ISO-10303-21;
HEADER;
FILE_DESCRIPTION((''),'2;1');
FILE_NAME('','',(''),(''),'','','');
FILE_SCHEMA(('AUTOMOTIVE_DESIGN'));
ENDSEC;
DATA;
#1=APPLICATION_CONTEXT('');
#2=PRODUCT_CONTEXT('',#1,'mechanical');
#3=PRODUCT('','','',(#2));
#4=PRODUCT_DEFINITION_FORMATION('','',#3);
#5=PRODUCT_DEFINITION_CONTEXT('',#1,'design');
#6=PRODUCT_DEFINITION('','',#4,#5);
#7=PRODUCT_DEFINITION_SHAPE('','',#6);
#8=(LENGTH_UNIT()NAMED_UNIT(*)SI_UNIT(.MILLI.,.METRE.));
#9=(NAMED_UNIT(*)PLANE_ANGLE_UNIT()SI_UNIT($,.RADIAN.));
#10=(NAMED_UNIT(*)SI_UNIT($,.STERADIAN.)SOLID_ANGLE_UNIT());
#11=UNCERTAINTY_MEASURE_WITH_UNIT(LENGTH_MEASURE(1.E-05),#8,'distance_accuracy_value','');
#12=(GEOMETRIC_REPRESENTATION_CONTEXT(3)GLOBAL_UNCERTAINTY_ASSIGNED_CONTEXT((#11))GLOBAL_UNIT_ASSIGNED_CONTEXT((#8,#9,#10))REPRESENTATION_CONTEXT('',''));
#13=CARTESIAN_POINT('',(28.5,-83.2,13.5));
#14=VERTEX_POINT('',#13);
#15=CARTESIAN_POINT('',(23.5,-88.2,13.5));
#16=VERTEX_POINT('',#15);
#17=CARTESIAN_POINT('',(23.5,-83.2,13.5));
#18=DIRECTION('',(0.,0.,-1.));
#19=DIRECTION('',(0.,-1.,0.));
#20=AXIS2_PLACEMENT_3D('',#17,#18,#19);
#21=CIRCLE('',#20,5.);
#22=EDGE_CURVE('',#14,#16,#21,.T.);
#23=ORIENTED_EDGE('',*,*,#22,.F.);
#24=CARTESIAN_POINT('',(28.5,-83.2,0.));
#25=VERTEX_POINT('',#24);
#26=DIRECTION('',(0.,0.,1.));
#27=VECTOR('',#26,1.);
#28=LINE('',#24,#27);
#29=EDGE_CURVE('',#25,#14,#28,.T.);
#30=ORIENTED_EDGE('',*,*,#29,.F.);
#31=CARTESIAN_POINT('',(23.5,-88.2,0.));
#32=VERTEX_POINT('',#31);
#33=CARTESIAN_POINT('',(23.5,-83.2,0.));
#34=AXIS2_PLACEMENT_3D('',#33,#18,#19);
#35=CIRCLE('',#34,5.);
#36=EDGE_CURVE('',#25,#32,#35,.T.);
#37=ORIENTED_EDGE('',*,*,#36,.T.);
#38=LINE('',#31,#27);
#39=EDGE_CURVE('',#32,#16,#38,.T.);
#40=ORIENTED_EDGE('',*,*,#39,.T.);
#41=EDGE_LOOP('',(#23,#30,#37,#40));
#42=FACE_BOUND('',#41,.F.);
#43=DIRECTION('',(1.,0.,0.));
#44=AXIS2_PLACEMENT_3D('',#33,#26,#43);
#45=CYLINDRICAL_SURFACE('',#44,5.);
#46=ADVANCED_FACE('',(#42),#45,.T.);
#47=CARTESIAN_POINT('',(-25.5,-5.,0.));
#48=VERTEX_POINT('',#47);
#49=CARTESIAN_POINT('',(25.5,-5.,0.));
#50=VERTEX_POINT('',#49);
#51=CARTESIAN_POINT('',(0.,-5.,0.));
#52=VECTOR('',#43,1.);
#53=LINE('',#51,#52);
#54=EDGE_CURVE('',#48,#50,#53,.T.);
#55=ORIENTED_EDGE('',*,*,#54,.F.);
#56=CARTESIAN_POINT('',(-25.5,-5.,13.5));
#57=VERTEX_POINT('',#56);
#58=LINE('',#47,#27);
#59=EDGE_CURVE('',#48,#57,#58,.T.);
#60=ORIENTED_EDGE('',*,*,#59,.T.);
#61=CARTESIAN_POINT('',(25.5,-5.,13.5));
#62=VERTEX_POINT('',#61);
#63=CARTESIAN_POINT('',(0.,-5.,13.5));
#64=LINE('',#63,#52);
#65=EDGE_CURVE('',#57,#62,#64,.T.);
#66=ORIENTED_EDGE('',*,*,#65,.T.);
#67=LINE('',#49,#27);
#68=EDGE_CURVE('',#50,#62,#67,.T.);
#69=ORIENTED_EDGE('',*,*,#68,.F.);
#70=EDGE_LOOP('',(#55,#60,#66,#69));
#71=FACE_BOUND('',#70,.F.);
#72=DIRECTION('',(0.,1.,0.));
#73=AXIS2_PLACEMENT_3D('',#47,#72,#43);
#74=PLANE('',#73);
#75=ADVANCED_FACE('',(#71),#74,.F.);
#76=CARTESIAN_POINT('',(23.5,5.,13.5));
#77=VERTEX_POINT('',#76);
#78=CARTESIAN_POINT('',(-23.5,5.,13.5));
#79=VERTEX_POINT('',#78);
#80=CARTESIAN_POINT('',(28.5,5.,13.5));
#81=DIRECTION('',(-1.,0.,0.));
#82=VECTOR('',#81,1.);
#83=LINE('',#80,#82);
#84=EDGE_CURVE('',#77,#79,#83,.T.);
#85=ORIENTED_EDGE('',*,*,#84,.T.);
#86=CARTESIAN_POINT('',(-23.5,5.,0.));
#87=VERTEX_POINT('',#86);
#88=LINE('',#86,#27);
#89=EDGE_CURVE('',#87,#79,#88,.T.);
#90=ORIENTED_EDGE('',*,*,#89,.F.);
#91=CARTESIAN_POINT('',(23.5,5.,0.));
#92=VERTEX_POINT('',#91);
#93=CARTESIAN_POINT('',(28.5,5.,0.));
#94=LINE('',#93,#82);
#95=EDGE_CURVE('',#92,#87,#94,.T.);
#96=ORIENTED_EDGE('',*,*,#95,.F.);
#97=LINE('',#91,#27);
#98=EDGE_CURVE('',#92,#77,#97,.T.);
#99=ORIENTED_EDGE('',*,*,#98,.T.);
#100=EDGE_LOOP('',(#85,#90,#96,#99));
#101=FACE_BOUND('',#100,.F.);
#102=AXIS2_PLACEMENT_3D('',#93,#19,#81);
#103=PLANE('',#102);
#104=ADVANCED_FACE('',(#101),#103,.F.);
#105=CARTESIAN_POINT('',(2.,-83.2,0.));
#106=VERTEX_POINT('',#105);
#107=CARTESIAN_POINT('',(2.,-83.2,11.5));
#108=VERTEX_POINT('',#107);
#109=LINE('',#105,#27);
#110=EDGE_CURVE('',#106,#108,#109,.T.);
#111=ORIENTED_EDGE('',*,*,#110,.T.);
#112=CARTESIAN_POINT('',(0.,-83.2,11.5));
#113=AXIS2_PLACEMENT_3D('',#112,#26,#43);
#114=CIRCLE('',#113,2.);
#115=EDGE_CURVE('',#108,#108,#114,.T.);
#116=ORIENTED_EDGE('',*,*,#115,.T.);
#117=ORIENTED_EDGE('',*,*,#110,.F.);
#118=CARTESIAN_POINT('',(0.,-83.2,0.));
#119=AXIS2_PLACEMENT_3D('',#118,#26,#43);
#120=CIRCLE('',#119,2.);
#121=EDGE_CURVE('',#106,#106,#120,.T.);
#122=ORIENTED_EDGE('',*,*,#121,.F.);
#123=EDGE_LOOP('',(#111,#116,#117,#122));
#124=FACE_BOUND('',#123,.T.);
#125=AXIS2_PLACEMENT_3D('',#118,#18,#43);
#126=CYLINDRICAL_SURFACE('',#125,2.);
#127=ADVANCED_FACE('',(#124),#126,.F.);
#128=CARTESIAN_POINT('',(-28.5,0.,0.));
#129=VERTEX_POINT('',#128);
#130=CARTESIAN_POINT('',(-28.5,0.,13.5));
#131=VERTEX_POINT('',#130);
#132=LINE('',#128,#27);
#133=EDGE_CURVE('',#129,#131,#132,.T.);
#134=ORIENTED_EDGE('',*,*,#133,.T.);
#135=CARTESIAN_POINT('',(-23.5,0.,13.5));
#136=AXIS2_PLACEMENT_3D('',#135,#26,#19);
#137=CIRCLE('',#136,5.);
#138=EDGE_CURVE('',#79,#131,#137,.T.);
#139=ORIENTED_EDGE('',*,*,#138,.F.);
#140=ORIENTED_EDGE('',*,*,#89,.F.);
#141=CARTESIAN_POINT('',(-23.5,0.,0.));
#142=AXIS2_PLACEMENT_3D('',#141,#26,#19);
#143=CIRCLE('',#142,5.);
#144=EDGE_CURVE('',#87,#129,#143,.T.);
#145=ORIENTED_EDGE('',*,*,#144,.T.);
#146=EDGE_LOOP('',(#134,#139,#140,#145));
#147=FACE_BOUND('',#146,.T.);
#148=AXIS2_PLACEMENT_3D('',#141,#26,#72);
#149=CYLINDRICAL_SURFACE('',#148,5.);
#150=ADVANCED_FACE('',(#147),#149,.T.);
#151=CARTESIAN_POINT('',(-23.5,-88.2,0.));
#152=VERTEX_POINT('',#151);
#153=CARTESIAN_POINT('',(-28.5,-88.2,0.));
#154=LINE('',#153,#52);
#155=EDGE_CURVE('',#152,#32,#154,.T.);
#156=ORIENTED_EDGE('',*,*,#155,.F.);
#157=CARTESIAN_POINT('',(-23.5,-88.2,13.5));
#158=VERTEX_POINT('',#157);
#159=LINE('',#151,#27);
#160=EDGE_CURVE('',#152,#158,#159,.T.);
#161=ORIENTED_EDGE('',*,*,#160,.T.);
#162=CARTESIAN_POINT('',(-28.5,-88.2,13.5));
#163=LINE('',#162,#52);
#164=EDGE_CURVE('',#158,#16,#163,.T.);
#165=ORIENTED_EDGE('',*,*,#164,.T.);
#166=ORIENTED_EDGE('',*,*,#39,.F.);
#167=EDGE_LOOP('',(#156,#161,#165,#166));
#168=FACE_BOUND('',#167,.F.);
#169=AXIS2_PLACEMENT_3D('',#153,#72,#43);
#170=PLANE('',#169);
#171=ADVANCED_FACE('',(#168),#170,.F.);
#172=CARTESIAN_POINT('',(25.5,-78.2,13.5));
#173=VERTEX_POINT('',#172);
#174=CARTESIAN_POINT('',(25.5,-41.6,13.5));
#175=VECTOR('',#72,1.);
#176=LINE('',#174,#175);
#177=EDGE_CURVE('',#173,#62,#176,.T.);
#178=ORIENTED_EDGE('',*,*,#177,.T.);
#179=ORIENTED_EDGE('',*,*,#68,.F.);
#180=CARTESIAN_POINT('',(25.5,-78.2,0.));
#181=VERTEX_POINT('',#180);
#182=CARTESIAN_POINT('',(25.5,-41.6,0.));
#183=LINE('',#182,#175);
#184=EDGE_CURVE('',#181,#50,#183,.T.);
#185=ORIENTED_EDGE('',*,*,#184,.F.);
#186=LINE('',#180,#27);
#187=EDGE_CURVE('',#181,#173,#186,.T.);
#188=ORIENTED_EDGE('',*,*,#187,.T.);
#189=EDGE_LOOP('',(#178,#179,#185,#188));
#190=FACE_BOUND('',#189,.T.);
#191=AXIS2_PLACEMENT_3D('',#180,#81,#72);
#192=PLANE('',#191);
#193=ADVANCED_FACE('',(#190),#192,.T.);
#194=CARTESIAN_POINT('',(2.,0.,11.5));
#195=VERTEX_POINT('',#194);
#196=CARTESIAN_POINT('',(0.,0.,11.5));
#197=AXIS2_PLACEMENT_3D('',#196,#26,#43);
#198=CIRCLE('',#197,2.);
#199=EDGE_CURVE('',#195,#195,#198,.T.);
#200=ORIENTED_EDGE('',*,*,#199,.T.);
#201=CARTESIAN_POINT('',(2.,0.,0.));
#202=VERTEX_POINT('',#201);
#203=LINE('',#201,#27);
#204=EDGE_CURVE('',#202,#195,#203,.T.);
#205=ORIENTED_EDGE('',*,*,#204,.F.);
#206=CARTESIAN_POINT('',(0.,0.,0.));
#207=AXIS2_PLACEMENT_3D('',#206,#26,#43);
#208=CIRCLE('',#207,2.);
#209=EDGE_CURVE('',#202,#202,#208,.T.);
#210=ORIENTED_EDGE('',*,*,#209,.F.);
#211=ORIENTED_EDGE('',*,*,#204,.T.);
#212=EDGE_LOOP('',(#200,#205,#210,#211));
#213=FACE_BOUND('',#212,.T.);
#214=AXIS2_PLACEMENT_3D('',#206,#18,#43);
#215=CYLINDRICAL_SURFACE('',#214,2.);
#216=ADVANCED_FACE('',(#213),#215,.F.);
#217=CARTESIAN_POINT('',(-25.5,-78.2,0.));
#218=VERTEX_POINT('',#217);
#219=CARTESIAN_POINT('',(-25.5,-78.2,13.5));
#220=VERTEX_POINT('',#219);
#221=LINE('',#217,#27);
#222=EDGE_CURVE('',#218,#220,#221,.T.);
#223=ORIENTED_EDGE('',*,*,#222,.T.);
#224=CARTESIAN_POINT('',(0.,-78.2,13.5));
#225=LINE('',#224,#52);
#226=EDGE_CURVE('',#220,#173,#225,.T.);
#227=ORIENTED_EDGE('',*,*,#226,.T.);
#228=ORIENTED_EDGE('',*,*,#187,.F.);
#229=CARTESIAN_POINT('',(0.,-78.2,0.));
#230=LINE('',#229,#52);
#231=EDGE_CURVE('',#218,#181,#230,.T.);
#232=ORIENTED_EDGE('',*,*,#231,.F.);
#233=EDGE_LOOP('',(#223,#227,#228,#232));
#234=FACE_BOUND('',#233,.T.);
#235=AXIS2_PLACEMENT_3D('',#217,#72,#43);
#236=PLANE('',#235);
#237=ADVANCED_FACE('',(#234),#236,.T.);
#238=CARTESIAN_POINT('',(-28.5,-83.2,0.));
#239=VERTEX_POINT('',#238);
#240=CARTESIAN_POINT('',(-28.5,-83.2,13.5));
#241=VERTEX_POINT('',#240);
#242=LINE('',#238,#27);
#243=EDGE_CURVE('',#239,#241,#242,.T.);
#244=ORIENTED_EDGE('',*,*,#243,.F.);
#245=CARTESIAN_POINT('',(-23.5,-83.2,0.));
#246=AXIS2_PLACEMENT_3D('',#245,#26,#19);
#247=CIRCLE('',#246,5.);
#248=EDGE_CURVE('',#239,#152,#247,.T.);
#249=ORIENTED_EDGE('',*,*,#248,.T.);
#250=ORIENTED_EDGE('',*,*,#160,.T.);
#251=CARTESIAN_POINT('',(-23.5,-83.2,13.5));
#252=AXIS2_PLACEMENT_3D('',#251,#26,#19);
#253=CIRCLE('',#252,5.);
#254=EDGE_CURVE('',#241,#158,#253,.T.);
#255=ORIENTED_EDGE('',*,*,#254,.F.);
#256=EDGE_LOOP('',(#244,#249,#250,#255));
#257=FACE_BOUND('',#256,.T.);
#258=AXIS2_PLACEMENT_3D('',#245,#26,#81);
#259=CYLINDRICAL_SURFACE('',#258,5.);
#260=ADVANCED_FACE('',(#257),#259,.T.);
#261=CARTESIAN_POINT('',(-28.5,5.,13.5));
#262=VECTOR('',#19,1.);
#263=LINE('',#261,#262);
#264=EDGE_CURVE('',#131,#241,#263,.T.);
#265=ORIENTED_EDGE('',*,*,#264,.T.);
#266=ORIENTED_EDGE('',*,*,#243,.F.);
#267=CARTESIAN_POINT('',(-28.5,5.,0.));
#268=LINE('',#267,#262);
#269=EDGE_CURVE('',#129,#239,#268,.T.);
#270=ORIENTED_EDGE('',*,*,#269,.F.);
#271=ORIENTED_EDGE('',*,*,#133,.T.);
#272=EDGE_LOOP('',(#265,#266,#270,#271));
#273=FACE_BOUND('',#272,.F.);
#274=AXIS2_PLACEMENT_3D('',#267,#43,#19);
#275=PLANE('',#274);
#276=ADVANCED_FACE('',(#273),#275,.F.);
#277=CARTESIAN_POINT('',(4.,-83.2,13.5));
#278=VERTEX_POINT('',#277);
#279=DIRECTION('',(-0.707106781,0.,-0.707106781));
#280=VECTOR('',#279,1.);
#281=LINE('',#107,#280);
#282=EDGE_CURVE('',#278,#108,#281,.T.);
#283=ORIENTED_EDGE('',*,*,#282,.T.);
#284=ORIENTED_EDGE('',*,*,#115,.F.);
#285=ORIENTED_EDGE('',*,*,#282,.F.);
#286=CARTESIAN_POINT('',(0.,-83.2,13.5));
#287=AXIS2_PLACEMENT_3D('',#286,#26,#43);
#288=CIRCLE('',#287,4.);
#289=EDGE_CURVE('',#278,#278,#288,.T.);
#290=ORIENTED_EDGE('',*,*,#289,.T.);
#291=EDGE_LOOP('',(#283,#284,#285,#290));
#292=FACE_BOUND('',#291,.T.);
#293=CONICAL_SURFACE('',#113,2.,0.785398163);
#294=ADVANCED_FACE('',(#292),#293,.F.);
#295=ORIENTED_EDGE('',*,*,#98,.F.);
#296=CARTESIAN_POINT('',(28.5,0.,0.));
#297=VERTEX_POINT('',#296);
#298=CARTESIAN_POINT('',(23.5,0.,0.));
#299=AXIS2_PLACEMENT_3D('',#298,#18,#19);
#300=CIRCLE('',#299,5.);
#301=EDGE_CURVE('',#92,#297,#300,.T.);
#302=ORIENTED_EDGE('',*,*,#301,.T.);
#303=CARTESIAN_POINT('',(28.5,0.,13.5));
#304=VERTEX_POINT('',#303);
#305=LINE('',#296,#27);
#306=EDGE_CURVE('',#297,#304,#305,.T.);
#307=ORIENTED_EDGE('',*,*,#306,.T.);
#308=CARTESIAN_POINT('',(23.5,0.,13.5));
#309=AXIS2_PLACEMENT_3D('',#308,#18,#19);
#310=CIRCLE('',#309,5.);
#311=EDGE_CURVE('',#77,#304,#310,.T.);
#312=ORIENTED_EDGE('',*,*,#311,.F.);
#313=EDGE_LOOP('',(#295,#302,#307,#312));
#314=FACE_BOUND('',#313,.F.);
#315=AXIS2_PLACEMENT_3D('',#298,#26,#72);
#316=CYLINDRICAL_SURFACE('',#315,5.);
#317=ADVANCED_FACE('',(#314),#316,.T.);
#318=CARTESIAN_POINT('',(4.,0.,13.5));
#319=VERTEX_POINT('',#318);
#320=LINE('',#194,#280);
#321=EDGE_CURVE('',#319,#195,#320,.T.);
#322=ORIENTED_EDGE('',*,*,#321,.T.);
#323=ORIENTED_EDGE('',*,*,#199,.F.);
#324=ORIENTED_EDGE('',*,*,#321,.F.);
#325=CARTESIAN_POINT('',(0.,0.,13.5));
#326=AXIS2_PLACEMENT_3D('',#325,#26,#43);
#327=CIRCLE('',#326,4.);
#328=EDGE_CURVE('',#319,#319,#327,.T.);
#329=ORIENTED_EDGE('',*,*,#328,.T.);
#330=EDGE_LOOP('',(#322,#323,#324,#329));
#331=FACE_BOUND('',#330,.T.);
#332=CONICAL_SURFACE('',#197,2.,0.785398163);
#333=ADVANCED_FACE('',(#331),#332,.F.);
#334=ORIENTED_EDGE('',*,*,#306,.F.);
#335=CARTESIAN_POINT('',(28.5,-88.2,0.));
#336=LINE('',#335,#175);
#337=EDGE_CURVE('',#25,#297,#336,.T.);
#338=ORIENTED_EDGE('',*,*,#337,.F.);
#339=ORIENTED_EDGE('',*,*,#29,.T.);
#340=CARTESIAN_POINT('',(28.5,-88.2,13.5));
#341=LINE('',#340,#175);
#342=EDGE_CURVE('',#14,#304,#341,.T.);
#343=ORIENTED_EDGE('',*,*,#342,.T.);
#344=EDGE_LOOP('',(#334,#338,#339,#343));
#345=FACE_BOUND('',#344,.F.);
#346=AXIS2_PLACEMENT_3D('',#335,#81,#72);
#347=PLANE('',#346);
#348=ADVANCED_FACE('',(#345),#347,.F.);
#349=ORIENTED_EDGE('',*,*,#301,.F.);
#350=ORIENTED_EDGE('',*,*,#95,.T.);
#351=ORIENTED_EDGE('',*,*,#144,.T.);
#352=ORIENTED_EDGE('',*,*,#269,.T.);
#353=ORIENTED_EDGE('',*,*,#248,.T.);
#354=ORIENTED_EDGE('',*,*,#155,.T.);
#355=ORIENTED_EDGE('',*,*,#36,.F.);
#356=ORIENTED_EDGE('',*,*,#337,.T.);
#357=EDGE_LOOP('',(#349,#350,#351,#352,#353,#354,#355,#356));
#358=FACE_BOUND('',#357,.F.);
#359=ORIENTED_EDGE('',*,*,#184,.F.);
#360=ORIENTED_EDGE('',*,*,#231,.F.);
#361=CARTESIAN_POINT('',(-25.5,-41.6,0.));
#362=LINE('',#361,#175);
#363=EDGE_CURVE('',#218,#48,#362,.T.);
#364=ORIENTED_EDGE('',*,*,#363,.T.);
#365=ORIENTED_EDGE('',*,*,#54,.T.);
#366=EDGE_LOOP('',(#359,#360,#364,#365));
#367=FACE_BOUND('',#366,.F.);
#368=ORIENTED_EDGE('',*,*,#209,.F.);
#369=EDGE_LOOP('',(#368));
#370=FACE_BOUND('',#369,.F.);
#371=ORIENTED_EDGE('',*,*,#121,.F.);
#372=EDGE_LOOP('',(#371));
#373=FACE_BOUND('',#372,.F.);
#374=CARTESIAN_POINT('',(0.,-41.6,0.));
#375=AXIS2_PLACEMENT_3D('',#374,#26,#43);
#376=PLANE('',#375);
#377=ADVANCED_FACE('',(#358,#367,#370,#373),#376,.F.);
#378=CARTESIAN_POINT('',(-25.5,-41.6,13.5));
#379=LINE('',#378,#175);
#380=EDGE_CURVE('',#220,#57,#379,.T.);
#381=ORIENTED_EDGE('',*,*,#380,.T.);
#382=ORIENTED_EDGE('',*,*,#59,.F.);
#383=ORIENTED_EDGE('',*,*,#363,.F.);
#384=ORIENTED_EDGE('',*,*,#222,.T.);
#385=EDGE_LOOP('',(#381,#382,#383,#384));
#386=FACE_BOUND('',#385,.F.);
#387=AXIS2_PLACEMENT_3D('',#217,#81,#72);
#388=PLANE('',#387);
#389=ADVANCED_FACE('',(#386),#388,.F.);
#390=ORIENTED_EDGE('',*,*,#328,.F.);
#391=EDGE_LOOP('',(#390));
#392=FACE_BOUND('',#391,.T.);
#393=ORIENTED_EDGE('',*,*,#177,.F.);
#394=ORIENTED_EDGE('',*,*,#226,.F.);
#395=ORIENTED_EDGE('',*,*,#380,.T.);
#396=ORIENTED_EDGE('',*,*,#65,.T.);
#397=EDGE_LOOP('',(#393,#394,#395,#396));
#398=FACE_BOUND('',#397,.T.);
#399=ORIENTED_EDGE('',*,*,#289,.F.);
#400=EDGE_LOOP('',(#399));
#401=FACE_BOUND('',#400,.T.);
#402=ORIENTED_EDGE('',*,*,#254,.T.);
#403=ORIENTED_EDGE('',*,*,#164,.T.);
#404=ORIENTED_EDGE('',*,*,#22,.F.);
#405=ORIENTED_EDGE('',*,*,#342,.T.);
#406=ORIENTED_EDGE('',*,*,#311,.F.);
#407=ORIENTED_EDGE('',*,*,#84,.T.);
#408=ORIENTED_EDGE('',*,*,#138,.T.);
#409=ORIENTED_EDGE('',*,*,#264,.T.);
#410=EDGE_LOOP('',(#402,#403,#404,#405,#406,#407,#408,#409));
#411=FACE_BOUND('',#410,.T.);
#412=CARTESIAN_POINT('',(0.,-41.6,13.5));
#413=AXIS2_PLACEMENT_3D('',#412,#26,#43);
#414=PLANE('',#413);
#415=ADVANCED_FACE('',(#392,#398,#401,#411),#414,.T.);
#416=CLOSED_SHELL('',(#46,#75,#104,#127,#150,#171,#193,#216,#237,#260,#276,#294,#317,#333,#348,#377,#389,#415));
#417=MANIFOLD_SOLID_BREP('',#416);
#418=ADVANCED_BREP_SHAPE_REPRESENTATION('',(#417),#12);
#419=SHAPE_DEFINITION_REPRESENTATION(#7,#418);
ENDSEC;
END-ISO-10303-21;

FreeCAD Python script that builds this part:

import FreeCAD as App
import Part
import Sketcher
from FreeCAD import Vector
Q = App.Units.Quantity


def edges_at(feature, points):
    """Names of the edges that pass closest to the given points."""
    edges = feature.Shape.Edges
    near = lambda p: min(range(len(edges)), key=lambda i: edges[i].distToShape(Part.Vertex(*p))[0])
    return sorted({f"Edge{near(p) + 1}" for p in points})

doc = App.newDocument("Part")
body = doc.addObject("PartDesign::Body", "Body")

# Sketch on XY plane
sketch1 = body.newObject("Sketcher::SketchObject", "Sketch")
sketch1.AttachmentSupport = (doc.getObject("XY_Plane"), [""])
sketch1.MapMode = "FlatFace"
sketch1.addGeometry([
    Part.LineSegment(Vector(28.5, 5, 0), Vector(-28.5, 5, 0)),  # 0
    Part.LineSegment(Vector(-28.5, 5, 0), Vector(-28.5, -88.2, 0)),  # 1
    Part.LineSegment(Vector(-28.5, -88.2, 0), Vector(28.5, -88.2, 0)),  # 2
    Part.LineSegment(Vector(28.5, -88.2, 0), Vector(28.5, 5, 0)),  # 3
    Part.Circle(Vector(0, -83.2, 0), Vector(0, 0, 1), 2),  # 4
    Part.LineSegment(Vector(25.5, -78.2, 0), Vector(-25.5, -78.2, 0)),  # 5
    Part.LineSegment(Vector(-25.5, -78.2, 0), Vector(-25.5, -5, 0)),  # 6
    Part.LineSegment(Vector(-25.5, -5, 0), Vector(25.5, -5, 0)),  # 7
    Part.LineSegment(Vector(25.5, -5, 0), Vector(25.5, -78.2, 0)),  # 8
    Part.Circle(Vector(0, 0, 0), Vector(0, 0, 1), 2),  # 9
], False)
sketch1.addConstraint([
    Sketcher.Constraint("Coincident", 0, 2, 1, 1),
    Sketcher.Constraint("Coincident", 1, 2, 2, 1),
    Sketcher.Constraint("Coincident", 2, 2, 3, 1),
    Sketcher.Constraint("Coincident", 3, 2, 0, 1),
    Sketcher.Constraint("Coincident", 5, 2, 6, 1),
    Sketcher.Constraint("Coincident", 6, 2, 7, 1),
    Sketcher.Constraint("Coincident", 7, 2, 8, 1),
    Sketcher.Constraint("Coincident", 8, 2, 5, 1),
    Sketcher.Constraint("Horizontal", 0),
    Sketcher.Constraint("Vertical", 1),
    Sketcher.Constraint("Horizontal", 2),
    Sketcher.Constraint("Vertical", 3),
    Sketcher.Constraint("Horizontal", 5),
    Sketcher.Constraint("Vertical", 6),
    Sketcher.Constraint("Horizontal", 7),
    Sketcher.Constraint("Vertical", 8),
    Sketcher.Constraint("Coincident", 9, 3, -1, 1),
    Sketcher.Constraint("Equal", 4, 9),
    Sketcher.Constraint("PointOnObject", 4, 3, -2),
    Sketcher.Constraint("Diameter", 4, Q("4 mm")),
    Sketcher.Constraint("DistanceX", 0, 2, 0, 1, Q("57 mm")),
    Sketcher.Constraint("DistanceX", 5, 2, 5, 1, Q("51 mm")),
    Sketcher.Constraint("DistanceY", 1, 2, 1, 1, Q("93.2 mm")),
    Sketcher.Constraint("DistanceY", 6, 1, 6, 2, Q("73.2 mm")),
    Sketcher.Constraint("DistanceY", -1, 1, 0, 2, Q("5 mm")),
    Sketcher.Constraint("DistanceY", 6, 2, -1, 1, Q("5 mm")),
    Sketcher.Constraint("DistanceY", 1, 2, 4, 3, Q("5 mm")),
    Sketcher.Constraint("DistanceX", 1, 2, 5, 2, Q("3 mm")),
    Sketcher.Constraint("DistanceX", 0, 2, -1, 1, Q("28.5 mm")),
])
pad1 = body.newObject("PartDesign::Pad", "Pad")
pad1.Profile = sketch1
pad1.Length = 13.5
doc.recompute()

fillet = body.newObject("PartDesign::Fillet", "Fillet")
fillet.Base = (pad1, edges_at(pad1, [
    (-28.5, 5, 6.75),
    (28.5, 5, 6.75),
    (-28.5, -88.2, 6.75),
    (28.5, -88.2, 6.75),
]))
fillet.Radius = 5
doc.recompute()

chamfer = body.newObject("PartDesign::Chamfer", "Chamfer")
chamfer.Base = (fillet, edges_at(fillet, [(-2, 0, 13.5), (-2, -83.2, 13.5)]))
chamfer.Size = 2

doc.recompute()
